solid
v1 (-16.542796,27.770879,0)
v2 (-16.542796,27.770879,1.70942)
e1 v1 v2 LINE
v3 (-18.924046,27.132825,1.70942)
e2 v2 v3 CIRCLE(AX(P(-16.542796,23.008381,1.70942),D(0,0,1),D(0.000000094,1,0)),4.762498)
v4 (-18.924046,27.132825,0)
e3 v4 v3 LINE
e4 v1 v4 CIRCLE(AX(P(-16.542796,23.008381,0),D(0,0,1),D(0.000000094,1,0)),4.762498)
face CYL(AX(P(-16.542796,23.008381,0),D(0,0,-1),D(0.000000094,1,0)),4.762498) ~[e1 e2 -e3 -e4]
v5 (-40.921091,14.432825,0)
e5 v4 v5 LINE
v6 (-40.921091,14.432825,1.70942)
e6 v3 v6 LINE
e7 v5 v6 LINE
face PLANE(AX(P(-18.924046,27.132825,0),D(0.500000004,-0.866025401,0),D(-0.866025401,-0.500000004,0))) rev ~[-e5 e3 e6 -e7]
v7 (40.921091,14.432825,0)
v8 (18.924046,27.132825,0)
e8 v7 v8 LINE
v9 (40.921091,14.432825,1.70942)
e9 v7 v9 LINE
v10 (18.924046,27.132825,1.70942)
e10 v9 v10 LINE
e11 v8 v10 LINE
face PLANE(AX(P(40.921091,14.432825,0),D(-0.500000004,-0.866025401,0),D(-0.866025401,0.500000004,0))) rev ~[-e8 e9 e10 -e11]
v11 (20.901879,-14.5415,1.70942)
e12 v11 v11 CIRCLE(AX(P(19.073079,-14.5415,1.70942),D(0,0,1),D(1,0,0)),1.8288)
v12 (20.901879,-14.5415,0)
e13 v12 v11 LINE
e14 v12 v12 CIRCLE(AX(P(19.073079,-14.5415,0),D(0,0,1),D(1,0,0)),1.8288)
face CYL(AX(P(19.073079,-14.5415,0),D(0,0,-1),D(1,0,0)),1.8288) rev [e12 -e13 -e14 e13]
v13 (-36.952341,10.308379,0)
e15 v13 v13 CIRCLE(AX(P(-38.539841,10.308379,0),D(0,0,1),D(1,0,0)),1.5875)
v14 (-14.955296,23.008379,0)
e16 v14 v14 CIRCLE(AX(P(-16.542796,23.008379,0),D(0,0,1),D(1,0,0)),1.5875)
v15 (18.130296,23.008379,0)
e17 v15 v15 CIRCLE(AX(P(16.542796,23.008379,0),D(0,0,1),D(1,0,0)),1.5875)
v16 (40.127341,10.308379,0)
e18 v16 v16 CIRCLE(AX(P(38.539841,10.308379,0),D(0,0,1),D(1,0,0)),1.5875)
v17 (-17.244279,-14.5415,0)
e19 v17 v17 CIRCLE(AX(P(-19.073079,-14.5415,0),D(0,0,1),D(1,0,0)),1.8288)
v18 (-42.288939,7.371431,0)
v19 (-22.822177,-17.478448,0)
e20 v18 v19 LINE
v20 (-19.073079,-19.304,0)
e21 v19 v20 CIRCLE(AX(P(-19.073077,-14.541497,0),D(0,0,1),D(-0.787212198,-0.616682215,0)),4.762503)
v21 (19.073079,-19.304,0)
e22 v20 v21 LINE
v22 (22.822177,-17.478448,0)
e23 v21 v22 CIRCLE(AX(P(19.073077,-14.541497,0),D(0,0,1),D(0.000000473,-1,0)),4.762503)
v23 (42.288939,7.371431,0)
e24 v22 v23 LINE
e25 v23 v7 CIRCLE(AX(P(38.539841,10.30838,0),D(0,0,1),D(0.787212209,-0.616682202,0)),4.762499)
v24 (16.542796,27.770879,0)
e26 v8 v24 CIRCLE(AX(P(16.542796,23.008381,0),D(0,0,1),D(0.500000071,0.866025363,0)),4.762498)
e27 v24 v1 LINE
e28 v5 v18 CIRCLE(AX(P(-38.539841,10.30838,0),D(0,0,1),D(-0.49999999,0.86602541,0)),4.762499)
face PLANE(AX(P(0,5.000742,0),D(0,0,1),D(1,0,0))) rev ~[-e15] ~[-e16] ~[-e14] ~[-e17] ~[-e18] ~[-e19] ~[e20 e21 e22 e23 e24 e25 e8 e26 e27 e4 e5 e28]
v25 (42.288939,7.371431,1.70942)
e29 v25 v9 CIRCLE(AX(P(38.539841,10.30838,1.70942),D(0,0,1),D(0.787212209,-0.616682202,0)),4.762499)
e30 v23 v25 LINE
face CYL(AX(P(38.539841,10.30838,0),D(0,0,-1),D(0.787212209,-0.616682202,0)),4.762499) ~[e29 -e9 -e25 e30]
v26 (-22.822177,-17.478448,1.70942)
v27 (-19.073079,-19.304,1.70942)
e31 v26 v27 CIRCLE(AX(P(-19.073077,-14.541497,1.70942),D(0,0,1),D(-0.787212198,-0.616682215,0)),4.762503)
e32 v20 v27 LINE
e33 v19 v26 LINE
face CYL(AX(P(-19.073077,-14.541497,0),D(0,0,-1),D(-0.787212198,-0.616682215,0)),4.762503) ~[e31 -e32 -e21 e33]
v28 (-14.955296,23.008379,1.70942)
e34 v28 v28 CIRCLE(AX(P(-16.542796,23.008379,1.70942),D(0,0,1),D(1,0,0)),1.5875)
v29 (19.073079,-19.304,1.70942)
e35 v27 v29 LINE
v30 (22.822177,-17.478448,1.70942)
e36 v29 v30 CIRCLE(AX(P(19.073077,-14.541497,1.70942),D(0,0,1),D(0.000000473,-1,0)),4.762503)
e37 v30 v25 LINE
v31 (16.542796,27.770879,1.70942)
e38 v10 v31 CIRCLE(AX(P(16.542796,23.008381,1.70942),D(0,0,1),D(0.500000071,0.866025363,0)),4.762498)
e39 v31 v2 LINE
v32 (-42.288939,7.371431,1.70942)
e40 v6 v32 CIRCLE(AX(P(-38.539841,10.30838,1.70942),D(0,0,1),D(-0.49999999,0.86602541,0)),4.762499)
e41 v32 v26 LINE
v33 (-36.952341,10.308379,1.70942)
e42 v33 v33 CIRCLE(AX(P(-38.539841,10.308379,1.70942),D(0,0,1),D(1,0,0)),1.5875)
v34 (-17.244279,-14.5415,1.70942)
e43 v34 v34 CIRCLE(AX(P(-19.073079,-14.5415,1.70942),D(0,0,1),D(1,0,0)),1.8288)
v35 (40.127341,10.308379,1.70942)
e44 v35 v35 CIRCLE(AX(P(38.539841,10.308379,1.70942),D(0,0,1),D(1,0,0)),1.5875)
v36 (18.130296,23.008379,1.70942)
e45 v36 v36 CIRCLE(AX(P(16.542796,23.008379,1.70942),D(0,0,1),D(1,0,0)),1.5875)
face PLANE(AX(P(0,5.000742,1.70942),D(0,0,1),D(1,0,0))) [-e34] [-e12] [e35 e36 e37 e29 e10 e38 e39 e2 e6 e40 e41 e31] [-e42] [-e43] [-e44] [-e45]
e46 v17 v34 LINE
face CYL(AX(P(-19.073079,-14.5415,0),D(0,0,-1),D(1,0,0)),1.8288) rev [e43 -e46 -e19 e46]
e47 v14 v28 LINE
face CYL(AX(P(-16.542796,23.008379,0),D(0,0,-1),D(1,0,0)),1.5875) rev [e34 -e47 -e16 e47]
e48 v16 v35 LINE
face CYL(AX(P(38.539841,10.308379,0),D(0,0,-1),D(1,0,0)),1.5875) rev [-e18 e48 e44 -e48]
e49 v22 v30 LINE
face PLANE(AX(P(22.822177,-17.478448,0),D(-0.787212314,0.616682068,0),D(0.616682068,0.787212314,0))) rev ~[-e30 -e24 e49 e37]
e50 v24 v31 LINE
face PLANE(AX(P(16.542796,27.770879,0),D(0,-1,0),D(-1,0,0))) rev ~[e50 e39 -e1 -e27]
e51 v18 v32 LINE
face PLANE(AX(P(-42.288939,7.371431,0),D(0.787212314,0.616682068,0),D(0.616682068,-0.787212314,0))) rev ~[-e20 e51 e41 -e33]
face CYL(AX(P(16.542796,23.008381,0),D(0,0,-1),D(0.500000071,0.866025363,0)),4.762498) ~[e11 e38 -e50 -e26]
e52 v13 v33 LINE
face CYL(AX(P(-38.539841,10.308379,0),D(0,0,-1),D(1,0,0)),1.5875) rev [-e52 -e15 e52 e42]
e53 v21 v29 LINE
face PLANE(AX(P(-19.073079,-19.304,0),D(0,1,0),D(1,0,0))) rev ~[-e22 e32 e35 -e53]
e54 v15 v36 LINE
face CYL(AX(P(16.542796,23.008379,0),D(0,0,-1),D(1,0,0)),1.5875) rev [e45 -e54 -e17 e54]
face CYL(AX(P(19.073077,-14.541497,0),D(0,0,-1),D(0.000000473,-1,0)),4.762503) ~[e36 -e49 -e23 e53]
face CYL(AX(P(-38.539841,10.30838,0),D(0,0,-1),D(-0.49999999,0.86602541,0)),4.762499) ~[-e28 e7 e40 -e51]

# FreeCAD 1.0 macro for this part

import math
import FreeCAD as App
import Part
import Sketcher
Q = App.Units.Quantity

doc = App.newDocument("Part")
body = doc.addObject("PartDesign::Body", "Body")

sketch1 = doc.addObject("Sketcher::SketchObject", "Sketch")
body.addObject(sketch1)
sketch1.AttachmentSupport = (doc.XY_Plane, [""])
sketch1.MapMode = "FlatFace"
sketch1.addGeometry([
    Part.LineSegment(App.Vector(16.542796, 27.770879, 0), App.Vector(-16.542796, 27.770879, 0)),
    Part.ArcOfCircle(Part.Circle(App.Vector(-16.542796, 23.008381, 0), App.Vector(0, 0, 1), 4.762498), math.radians(89.999995), math.radians(120.000005)),
    Part.LineSegment(App.Vector(-18.924046, 27.132825, 0), App.Vector(-40.921091, 14.432825, 0)),
    Part.ArcOfCircle(Part.Circle(App.Vector(-38.539841, 10.30838, 0), App.Vector(0, 0, 1), 4.762499), math.radians(119.999999), math.radians(218.074254)),
    Part.LineSegment(App.Vector(-42.288939, 7.371431, 0), App.Vector(-22.822177, -17.478448, 0)),
    Part.ArcOfCircle(Part.Circle(App.Vector(-19.073077, -14.541497, 0), App.Vector(0, 0, 1), 4.762503), math.radians(-141.925745), math.radians(-90.000027)),
    Part.LineSegment(App.Vector(-19.073079, -19.304, 0), App.Vector(19.073079, -19.304, 0)),
    Part.ArcOfCircle(Part.Circle(App.Vector(19.073077, -14.541497, 0), App.Vector(0, 0, 1), 4.762503), math.radians(-89.999973), math.radians(-38.074255)),
    Part.LineSegment(App.Vector(22.822177, -17.478448, 0), App.Vector(42.288939, 7.371431, 0)),
    Part.ArcOfCircle(Part.Circle(App.Vector(38.539841, 10.30838, 0), App.Vector(0, 0, 1), 4.762499), math.radians(-38.074254), math.radians(60.000001)),
    Part.LineSegment(App.Vector(40.921091, 14.432825, 0), App.Vector(18.924046, 27.132825, 0)),
    Part.ArcOfCircle(Part.Circle(App.Vector(16.542796, 23.008381, 0), App.Vector(0, 0, 1), 4.762498), math.radians(59.999995), math.radians(90.000005)),
    Part.Circle(App.Vector(-19.073079, -14.5415, 0), App.Vector(0, 0, 1), 1.8288),
    Part.Circle(App.Vector(19.073079, -14.5415, 0), App.Vector(0, 0, 1), 1.8288),
    Part.Circle(App.Vector(-38.539841, 10.308379, 0), App.Vector(0, 0, 1), 1.5875),
    Part.Circle(App.Vector(-16.542796, 23.008379, 0), App.Vector(0, 0, 1), 1.5875),
    Part.Circle(App.Vector(38.539841, 10.308379, 0), App.Vector(0, 0, 1), 1.5875),
    Part.Circle(App.Vector(16.542796, 23.008379, 0), App.Vector(0, 0, 1), 1.5875),
], False)
sketch1.addConstraint([
    Sketcher.Constraint("Coincident", 0, 2, 1, 1),
    Sketcher.Constraint("Coincident", 1, 2, 2, 1),
    Sketcher.Constraint("Coincident", 2, 2, 3, 1),
    Sketcher.Constraint("Coincident", 3, 2, 4, 1),
    Sketcher.Constraint("Coincident", 4, 2, 5, 1),
    Sketcher.Constraint("Coincident", 5, 2, 6, 1),
    Sketcher.Constraint("Coincident", 6, 2, 7, 1),
    Sketcher.Constraint("Coincident", 7, 2, 8, 1),
    Sketcher.Constraint("Coincident", 8, 2, 9, 1),
    Sketcher.Constraint("Coincident", 9, 2, 10, 1),
    Sketcher.Constraint("Coincident", 10, 2, 11, 1),
    Sketcher.Constraint("Coincident", 11, 2, 0, 1),
    Sketcher.Constraint("Horizontal", 0),
    Sketcher.Constraint("Horizontal", 6),
    Sketcher.Constraint("Coincident", 12, 3, 5, 3),
    Sketcher.Constraint("Coincident", 13, 3, 7, 3),
    Sketcher.Constraint("Coincident", 14, 3, 3, 3),
    Sketcher.Constraint("Coincident", 15, 3, 1, 3),
    Sketcher.Constraint("Coincident", 16, 3, 9, 3),
    Sketcher.Constraint("Coincident", 17, 3, 11, 3),
    Sketcher.Constraint("Distance", 2, Q("1 in")),
    Sketcher.Constraint("Distance", 10, Q("1 in")),
    Sketcher.Constraint("Diameter", 12, Q("0.144 in")),
    Sketcher.Constraint("Diameter", 13, Q("0.144 in")),
    Sketcher.Constraint("Diameter", 14, Q("0.125 in")),
    Sketcher.Constraint("Diameter", 15, Q("0.125 in")),
    Sketcher.Constraint("Diameter", 16, Q("0.125 in")),
    Sketcher.Constraint("Diameter", 17, Q("0.125 in")),
    Sketcher.Constraint("Radius", 1, Q("0.1874999 in")),
    Sketcher.Constraint("Radius", 3, Q("0.1875 in")),
    Sketcher.Constraint("Radius", 5, Q("0.1875001 in")),
    Sketcher.Constraint("Radius", 7, Q("0.1875001 in")),
    Sketcher.Constraint("Radius", 9, Q("0.1875 in")),
    Sketcher.Constraint("Radius", 11, Q("0.1874999 in")),
    Sketcher.Constraint("DistanceY", 3, 3, 1, 3, Q("0.5 in")),
    Sketcher.Constraint("DistanceY", 9, 3, 1, 3, Q("0.5 in")),
    Sketcher.Constraint("DistanceY", 2, 2, 1, 2, Q("0.5 in")),
    Sketcher.Constraint("DistanceY", 9, 2, 10, 2, Q("0.5 in")),
    Sketcher.Constraint("DistanceY", 5, 2, -1, 1, Q("0.76 in")),
    Sketcher.Constraint("DistanceX", 1, 2, 0, 2, Q("0.09375 in")),
    Sketcher.Constraint("DistanceX", 1, 2, 1, 3, Q("0.09375 in")),
    Sketcher.Constraint("DistanceX", 9, 3, 9, 2, Q("0.09375 in")),
    Sketcher.Constraint("DistanceX", 11, 2, 10, 2, Q("0.09375 in")),
    Sketcher.Constraint("DistanceX", 12, 3, 11, 3, Q("1.4021998 in")),
    Sketcher.Constraint("DistanceX", 0, 2, 0, 1, Q("33.085592 mm")),
    Sketcher.Constraint("DistanceX", 4, 2, 12, 3, Q("3.749098 mm")),
    Sketcher.Constraint("DistanceX", 4, 2, 5, 2, Q("3.749098 mm")),
    Sketcher.Constraint("DistanceX", 7, 3, 7, 2, Q("3.7491 mm")),
    Sketcher.Constraint("DistanceX", 6, 1, 6, 2, Q("38.146158 mm")),
    Sketcher.Constraint("DistanceY", -1, 1, 1, 3, Q("23.008381 mm")),
    Sketcher.Constraint("DistanceX", 3, 3, -1, 1, Q("38.539841 mm")),
    Sketcher.Constraint("DistanceX", -1, 1, 13, 3, Q("19.073079 mm")),
    Sketcher.Constraint("DistanceX", 3, 2, -1, 1, Q("42.288939 mm")),
    Sketcher.Constraint("DistanceX", -1, 1, 8, 2, Q("42.288939 mm")),
])
pad1 = doc.addObject("PartDesign::Pad", "Pad")
body.addObject(pad1)
pad1.Profile = sketch1
pad1.Length = Q("0.0673 in")

doc.recompute()
